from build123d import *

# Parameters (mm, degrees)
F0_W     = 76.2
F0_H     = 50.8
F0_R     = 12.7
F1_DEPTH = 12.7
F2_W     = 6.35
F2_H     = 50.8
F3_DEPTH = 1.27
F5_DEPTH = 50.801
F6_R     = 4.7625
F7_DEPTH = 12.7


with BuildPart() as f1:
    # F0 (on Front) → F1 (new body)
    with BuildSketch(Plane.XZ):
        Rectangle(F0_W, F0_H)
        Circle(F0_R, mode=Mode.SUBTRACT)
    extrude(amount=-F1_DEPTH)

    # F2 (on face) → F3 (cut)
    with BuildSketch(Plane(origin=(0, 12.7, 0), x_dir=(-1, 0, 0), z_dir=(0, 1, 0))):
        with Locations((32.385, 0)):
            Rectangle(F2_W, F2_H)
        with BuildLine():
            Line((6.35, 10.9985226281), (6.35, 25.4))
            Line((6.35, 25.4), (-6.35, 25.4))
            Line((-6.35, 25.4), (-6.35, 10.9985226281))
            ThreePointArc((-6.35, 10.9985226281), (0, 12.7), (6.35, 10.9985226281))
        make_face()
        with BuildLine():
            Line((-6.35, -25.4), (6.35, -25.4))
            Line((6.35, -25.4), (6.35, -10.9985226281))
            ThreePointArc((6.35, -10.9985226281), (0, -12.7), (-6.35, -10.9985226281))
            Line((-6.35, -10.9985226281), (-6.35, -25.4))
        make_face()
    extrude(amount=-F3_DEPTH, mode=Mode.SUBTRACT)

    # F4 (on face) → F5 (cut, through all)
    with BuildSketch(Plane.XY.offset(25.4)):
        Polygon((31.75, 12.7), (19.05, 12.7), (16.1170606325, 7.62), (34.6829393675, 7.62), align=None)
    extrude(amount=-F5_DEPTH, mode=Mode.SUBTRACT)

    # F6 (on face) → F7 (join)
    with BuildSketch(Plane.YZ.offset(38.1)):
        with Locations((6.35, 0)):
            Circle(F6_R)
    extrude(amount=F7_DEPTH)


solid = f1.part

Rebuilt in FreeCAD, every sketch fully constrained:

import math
import FreeCAD as App
import Part
import Sketcher
from FreeCAD import Vector
Q = App.Units.Quantity

doc = App.newDocument("Part")
body = doc.addObject("PartDesign::Body", "Body")

sketch1 = body.newObject("Sketcher::SketchObject", "Sketch")
sketch1.AttachmentSupport = (doc.getObject("XZ_Plane"), [""])
sketch1.MapMode = "FlatFace"
sketch1.addGeometry([
    Part.LineSegment(Vector(-38, 25, 0), Vector(-38, -25, 0)),
    Part.LineSegment(Vector(-38, -25, 0), Vector(38, -25, 0)),
    Part.LineSegment(Vector(38, -25, 0), Vector(38, 25, 0)),
    Part.LineSegment(Vector(38, 25, 0), Vector(-38, 25, 0)),
    Part.Circle(Vector(0, 0, 0), Vector(0, 0, 1), 13),
], False)
sketch1.addConstraint([
    Sketcher.Constraint("Coincident", 0, 2, 1, 1),
    Sketcher.Constraint("Coincident", 1, 2, 2, 1),
    Sketcher.Constraint("Coincident", 2, 2, 3, 1),
    Sketcher.Constraint("Coincident", 3, 2, 0, 1),
    Sketcher.Constraint("Vertical", 0),
    Sketcher.Constraint("Horizontal", 1),
    Sketcher.Constraint("Vertical", 2),
    Sketcher.Constraint("Horizontal", 3),
    Sketcher.Constraint("Coincident", 4, 3, -1, 1),
    Sketcher.Constraint("Symmetric", 0, 2, 2, 2, -1, 1),
    Sketcher.Constraint("Diameter", 4, Q("1 in")),
    Sketcher.Constraint("DistanceX", 1, 1, 1, 2, Q("3 in")),
    Sketcher.Constraint("DistanceY", 0, 2, 0, 1, Q("2 in")),
])
pad1 = body.newObject("PartDesign::Pad", "Pad")
pad1.Profile = sketch1
pad1.Length = Q("0.5 in")
pad1.Reversed = True

sketch2 = body.newObject("Sketcher::SketchObject", "Sketch001")
sketch2.AttachmentSupport = (doc.getObject("XZ_Plane"), [""])
sketch2.MapMode = "FlatFace"
sketch2.AttachmentOffset = App.Placement(Vector(0, 0, -0.5 * 25.4), App.Rotation())
sketch2.addGeometry([
    Part.LineSegment(Vector(-29, 25, 0), Vector(-29, -25, 0)),
    Part.LineSegment(Vector(-29, -25, 0), Vector(-36, -25, 0)),
    Part.LineSegment(Vector(-36, -25, 0), Vector(-36, 25, 0)),
    Part.LineSegment(Vector(-36, 25, 0), Vector(-29, 25, 0)),
    Part.LineSegment(Vector(-6, 11, 0), Vector(-6, 25, 0)),
    Part.LineSegment(Vector(-6, 25, 0), Vector(6, 25, 0)),
    Part.LineSegment(Vector(6, 25, 0), Vector(6, 11, 0)),
    Part.ArcOfCircle(Part.Circle(Vector(0, 0, 0), Vector(0, 0, 1), 13), math.radians(60), math.radians(120)),
    Part.LineSegment(Vector(6, -25, 0), Vector(-6, -25, 0)),
    Part.LineSegment(Vector(-6, -25, 0), Vector(-6, -11, 0)),
    Part.ArcOfCircle(Part.Circle(Vector(0, 0, 0), Vector(0, 0, 1), 13), math.radians(-120), math.radians(-60)),
    Part.LineSegment(Vector(6, -11, 0), Vector(6, -25, 0)),
], False)
sketch2.addConstraint([
    Sketcher.Constraint("Coincident", 0, 2, 1, 1),
    Sketcher.Constraint("Coincident", 1, 2, 2, 1),
    Sketcher.Constraint("Coincident", 2, 2, 3, 1),
    Sketcher.Constraint("Coincident", 3, 2, 0, 1),
    Sketcher.Constraint("Coincident", 4, 2, 5, 1),
    Sketcher.Constraint("Coincident", 5, 2, 6, 1),
    Sketcher.Constraint("Coincident", 6, 2, 7, 1),
    Sketcher.Constraint("Coincident", 7, 2, 4, 1),
    Sketcher.Constraint("Coincident", 8, 2, 9, 1),
    Sketcher.Constraint("Coincident", 9, 2, 10, 1),
    Sketcher.Constraint("Coincident", 10, 2, 11, 1),
    Sketcher.Constraint("Coincident", 11, 2, 8, 1),
    Sketcher.Constraint("Vertical", 0),
    Sketcher.Constraint("Horizontal", 1),
    Sketcher.Constraint("Vertical", 2),
    Sketcher.Constraint("Horizontal", 3),
    Sketcher.Constraint("Vertical", 4),
    Sketcher.Constraint("Horizontal", 5),
    Sketcher.Constraint("Vertical", 6),
    Sketcher.Constraint("Horizontal", 8),
    Sketcher.Constraint("Vertical", 9),
    Sketcher.Constraint("Vertical", 11),
    Sketcher.Constraint("Coincident", 7, 3, -1, 1),
    Sketcher.Constraint("Coincident", 10, 3, -1, 1),
    Sketcher.Constraint("Equal", 7, 10),
    Sketcher.Constraint("Symmetric", 5, 2, 8, 2, -1, 1),
    Sketcher.Constraint("Horizontal", 3, 2, 4, 2),
    Sketcher.Constraint("Horizontal", 6, 2, 7, 2),
    Sketcher.Constraint("Horizontal", 1, 2, 8, 2),
    Sketcher.Constraint("Horizontal", 9, 2, 10, 2),
    Sketcher.Constraint("Radius", 7, Q("0.5 in")),
    Sketcher.Constraint("DistanceY", 0, 2, 0, 1, Q("2 in")),
    Sketcher.Constraint("DistanceX", 5, 1, 5, 2, Q("0.5 in")),
    Sketcher.Constraint("DistanceX", 1, 2, 1, 1, Q("0.25 in")),
    Sketcher.Constraint("DistanceX", 1, 2, -1, 1, Q("1.4 in")),
])
pocket1 = body.newObject("PartDesign::Pocket", "Pocket")
pocket1.Profile = sketch2
pocket1.Length = Q("0.05 in")
pocket1.Reversed = True

sketch3 = body.newObject("Sketcher::SketchObject", "Sketch002")
sketch3.AttachmentSupport = (doc.getObject("XY_Plane"), [""])
sketch3.MapMode = "FlatFace"
sketch3.AttachmentOffset = App.Placement(Vector(0, 0, 1 * 25.4), App.Rotation())
sketch3.addGeometry([
    Part.LineSegment(Vector(32, 13, 0), Vector(19, 13, 0)),
    Part.LineSegment(Vector(19, 13, 0), Vector(16, 8, 0)),
    Part.LineSegment(Vector(16, 8, 0), Vector(35, 8, 0)),
    Part.LineSegment(Vector(35, 8, 0), Vector(32, 13, 0)),
], False)
sketch3.addConstraint([
    Sketcher.Constraint("Coincident", 0, 2, 1, 1),
    Sketcher.Constraint("Coincident", 1, 2, 2, 1),
    Sketcher.Constraint("Coincident", 2, 2, 3, 1),
    Sketcher.Constraint("Coincident", 3, 2, 0, 1),
    Sketcher.Constraint("Horizontal", 0),
    Sketcher.Constraint("Horizontal", 2),
    Sketcher.Constraint("Equal", 1, 3),
    Sketcher.Constraint("DistanceX", 0, 2, 0, 1, Q("0.5 in")),
    Sketcher.Constraint("Angle", 1, Q("-120 deg")),
    Sketcher.Constraint("DistanceY", -1, 1, 0, 2, Q("0.5 in")),
    Sketcher.Constraint("DistanceY", -1, 1, 1, 2, Q("0.3 in")),
    Sketcher.Constraint("DistanceX", -1, 1, 0, 2, Q("0.75 in")),
])
pocket2 = body.newObject("PartDesign::Pocket", "Pocket001")
pocket2.Profile = sketch3
pocket2.Type = "ThroughAll"

sketch4 = body.newObject("Sketcher::SketchObject", "Sketch003")
sketch4.AttachmentSupport = (doc.getObject("YZ_Plane"), [""])
sketch4.MapMode = "FlatFace"
sketch4.AttachmentOffset = App.Placement(Vector(0, 0, 1.5 * 25.4), App.Rotation())
sketch4.addGeometry(Part.Circle(Vector(6.3, 0, 0), Vector(0, 0, 1), 4.8), False)
sketch4.addConstraint([
    Sketcher.Constraint("PointOnObject", 0, 3, -1),
    Sketcher.Constraint("Diameter", 0, Q("0.375 in")),
    Sketcher.Constraint("DistanceX", -1, 1, 0, 3, Q("0.25 in")),
])
pad2 = body.newObject("PartDesign::Pad", "Pad001")
pad2.Profile = sketch4
pad2.Length = Q("0.5 in")

doc.recompute()
